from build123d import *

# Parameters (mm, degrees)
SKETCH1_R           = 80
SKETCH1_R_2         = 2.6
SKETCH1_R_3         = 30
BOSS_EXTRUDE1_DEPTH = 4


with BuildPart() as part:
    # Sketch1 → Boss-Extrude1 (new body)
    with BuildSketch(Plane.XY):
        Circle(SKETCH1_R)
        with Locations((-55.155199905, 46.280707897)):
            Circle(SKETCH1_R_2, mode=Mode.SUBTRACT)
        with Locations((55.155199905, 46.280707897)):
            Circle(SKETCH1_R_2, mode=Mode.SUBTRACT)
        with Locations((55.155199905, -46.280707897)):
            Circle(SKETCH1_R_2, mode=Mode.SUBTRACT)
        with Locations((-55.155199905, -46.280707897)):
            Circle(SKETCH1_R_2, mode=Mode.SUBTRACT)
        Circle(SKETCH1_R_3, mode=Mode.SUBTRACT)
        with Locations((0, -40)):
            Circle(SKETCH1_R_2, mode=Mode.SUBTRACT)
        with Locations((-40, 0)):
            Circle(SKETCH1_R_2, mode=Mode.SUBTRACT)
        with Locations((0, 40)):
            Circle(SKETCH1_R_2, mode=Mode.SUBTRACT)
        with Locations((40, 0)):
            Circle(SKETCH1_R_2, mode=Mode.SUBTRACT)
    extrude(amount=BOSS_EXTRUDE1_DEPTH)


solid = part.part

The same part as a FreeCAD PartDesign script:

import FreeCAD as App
import Part
import Sketcher
Q = App.Units.Quantity

doc = App.newDocument("Part")
params = doc.addObject("Spreadsheet::Sheet", "Params")
for row, (alias, value) in enumerate([
    ("sketch1_diameter", "160 mm"),
    ("sketch1_diameter2", "60 mm"),
    ("sketch1_diameter3", "5.2 mm"),
    ("pad1_length", "4 mm"),
], start=1):
    params.set(f"A{row}", alias)
    params.set(f"B{row}", "=" + value)
    params.setAlias(f"B{row}", alias)

body = doc.addObject("PartDesign::Body", "Body")

sketch1 = body.newObject("Sketcher::SketchObject", "Sketch")
sketch1.AttachmentSupport = (doc.getObject("XY_Plane"), [""])
sketch1.MapMode = "FlatFace"
sketch1.addGeometry(Part.Circle(App.Vector(0, 0, 0), App.Vector(0, 0, 1), 80), False)
sketch1.addGeometry(Part.Circle(App.Vector(-55.1552, -46.280708, 0), App.Vector(0, 0, 1), 2.6), False)
sketch1.addGeometry(Part.Circle(App.Vector(-40, 0, 0), App.Vector(0, 0, 1), 2.6), False)
sketch1.addGeometry(Part.Circle(App.Vector(0, 0, 0), App.Vector(0, 0, 1), 30), False)
sketch1.addGeometry(Part.Circle(App.Vector(0, -40, 0), App.Vector(0, 0, 1), 2.6), False)
sketch1.addGeometry(Part.Circle(App.Vector(55.1552, -46.280708, 0), App.Vector(0, 0, 1), 2.6), False)
sketch1.addGeometry(Part.Circle(App.Vector(40, 0, 0), App.Vector(0, 0, 1), 2.6), False)
sketch1.addGeometry(Part.Circle(App.Vector(-55.1552, 46.280708, 0), App.Vector(0, 0, 1), 2.6), False)
sketch1.addGeometry(Part.Circle(App.Vector(0, 40, 0), App.Vector(0, 0, 1), 2.6), False)
sketch1.addGeometry(Part.Circle(App.Vector(55.1552, 46.280708, 0), App.Vector(0, 0, 1), 2.6), False)
sketch1.addConstraint(Sketcher.Constraint("Coincident", 0, 3, -1, 1))
sketch1.addConstraint(Sketcher.Constraint("Coincident", 3, 3, -1, 1))
sketch1.addConstraint(Sketcher.Constraint("Equal", 1, 2))
sketch1.addConstraint(Sketcher.Constraint("Equal", 2, 4))
sketch1.addConstraint(Sketcher.Constraint("Equal", 4, 5))
sketch1.addConstraint(Sketcher.Constraint("Equal", 5, 6))
sketch1.addConstraint(Sketcher.Constraint("Equal", 6, 7))
sketch1.addConstraint(Sketcher.Constraint("Equal", 7, 8))
sketch1.addConstraint(Sketcher.Constraint("Equal", 8, 9))
sketch1.addConstraint(Sketcher.Constraint("Symmetric", 2, 3, 6, 3, -1, 1))
sketch1.addConstraint(Sketcher.Constraint("Symmetric", 5, 3, 7, 3, -1, 1))
sketch1.addConstraint(Sketcher.Constraint("Symmetric", 4, 3, 8, 3, -1, 1))
sketch1.addConstraint(Sketcher.Constraint("Symmetric", 1, 3, 9, 3, -1, 1))
sketch1.addConstraint(Sketcher.Constraint("Symmetric", 1, 3, 5, 3, -2))
sketch1.addConstraint(Sketcher.Constraint("PointOnObject", 2, 3, -1))
sketch1.addConstraint(Sketcher.Constraint("PointOnObject", 4, 3, -2))
sketch1.addConstraint(Sketcher.Constraint("Diameter", 0, Q("160 mm")))
sketch1.addConstraint(Sketcher.Constraint("Diameter", 3, Q("60 mm")))
sketch1.addConstraint(Sketcher.Constraint("Diameter", 1, Q("5.2 mm")))
sketch1.addConstraint(Sketcher.Constraint("DistanceX", 2, 3, -1, 1, Q("40 mm")))
sketch1.addConstraint(Sketcher.Constraint("DistanceY", 4, 3, -1, 1, Q("40 mm")))
sketch1.addConstraint(Sketcher.Constraint("DistanceX", 1, 3, -1, 1, Q("55.1552 mm")))
sketch1.addConstraint(Sketcher.Constraint("DistanceY", 1, 3, -1, 1, Q("46.280708 mm")))
sketch1.setExpression("Constraints[16]", "Params.sketch1_diameter")
sketch1.setExpression("Constraints[17]", "Params.sketch1_diameter2")
sketch1.setExpression("Constraints[18]", "Params.sketch1_diameter3")
pad1 = body.newObject("PartDesign::Pad", "Pad")
pad1.Profile = sketch1
pad1.setExpression("Length", "Params.pad1_length")

doc.recompute()
